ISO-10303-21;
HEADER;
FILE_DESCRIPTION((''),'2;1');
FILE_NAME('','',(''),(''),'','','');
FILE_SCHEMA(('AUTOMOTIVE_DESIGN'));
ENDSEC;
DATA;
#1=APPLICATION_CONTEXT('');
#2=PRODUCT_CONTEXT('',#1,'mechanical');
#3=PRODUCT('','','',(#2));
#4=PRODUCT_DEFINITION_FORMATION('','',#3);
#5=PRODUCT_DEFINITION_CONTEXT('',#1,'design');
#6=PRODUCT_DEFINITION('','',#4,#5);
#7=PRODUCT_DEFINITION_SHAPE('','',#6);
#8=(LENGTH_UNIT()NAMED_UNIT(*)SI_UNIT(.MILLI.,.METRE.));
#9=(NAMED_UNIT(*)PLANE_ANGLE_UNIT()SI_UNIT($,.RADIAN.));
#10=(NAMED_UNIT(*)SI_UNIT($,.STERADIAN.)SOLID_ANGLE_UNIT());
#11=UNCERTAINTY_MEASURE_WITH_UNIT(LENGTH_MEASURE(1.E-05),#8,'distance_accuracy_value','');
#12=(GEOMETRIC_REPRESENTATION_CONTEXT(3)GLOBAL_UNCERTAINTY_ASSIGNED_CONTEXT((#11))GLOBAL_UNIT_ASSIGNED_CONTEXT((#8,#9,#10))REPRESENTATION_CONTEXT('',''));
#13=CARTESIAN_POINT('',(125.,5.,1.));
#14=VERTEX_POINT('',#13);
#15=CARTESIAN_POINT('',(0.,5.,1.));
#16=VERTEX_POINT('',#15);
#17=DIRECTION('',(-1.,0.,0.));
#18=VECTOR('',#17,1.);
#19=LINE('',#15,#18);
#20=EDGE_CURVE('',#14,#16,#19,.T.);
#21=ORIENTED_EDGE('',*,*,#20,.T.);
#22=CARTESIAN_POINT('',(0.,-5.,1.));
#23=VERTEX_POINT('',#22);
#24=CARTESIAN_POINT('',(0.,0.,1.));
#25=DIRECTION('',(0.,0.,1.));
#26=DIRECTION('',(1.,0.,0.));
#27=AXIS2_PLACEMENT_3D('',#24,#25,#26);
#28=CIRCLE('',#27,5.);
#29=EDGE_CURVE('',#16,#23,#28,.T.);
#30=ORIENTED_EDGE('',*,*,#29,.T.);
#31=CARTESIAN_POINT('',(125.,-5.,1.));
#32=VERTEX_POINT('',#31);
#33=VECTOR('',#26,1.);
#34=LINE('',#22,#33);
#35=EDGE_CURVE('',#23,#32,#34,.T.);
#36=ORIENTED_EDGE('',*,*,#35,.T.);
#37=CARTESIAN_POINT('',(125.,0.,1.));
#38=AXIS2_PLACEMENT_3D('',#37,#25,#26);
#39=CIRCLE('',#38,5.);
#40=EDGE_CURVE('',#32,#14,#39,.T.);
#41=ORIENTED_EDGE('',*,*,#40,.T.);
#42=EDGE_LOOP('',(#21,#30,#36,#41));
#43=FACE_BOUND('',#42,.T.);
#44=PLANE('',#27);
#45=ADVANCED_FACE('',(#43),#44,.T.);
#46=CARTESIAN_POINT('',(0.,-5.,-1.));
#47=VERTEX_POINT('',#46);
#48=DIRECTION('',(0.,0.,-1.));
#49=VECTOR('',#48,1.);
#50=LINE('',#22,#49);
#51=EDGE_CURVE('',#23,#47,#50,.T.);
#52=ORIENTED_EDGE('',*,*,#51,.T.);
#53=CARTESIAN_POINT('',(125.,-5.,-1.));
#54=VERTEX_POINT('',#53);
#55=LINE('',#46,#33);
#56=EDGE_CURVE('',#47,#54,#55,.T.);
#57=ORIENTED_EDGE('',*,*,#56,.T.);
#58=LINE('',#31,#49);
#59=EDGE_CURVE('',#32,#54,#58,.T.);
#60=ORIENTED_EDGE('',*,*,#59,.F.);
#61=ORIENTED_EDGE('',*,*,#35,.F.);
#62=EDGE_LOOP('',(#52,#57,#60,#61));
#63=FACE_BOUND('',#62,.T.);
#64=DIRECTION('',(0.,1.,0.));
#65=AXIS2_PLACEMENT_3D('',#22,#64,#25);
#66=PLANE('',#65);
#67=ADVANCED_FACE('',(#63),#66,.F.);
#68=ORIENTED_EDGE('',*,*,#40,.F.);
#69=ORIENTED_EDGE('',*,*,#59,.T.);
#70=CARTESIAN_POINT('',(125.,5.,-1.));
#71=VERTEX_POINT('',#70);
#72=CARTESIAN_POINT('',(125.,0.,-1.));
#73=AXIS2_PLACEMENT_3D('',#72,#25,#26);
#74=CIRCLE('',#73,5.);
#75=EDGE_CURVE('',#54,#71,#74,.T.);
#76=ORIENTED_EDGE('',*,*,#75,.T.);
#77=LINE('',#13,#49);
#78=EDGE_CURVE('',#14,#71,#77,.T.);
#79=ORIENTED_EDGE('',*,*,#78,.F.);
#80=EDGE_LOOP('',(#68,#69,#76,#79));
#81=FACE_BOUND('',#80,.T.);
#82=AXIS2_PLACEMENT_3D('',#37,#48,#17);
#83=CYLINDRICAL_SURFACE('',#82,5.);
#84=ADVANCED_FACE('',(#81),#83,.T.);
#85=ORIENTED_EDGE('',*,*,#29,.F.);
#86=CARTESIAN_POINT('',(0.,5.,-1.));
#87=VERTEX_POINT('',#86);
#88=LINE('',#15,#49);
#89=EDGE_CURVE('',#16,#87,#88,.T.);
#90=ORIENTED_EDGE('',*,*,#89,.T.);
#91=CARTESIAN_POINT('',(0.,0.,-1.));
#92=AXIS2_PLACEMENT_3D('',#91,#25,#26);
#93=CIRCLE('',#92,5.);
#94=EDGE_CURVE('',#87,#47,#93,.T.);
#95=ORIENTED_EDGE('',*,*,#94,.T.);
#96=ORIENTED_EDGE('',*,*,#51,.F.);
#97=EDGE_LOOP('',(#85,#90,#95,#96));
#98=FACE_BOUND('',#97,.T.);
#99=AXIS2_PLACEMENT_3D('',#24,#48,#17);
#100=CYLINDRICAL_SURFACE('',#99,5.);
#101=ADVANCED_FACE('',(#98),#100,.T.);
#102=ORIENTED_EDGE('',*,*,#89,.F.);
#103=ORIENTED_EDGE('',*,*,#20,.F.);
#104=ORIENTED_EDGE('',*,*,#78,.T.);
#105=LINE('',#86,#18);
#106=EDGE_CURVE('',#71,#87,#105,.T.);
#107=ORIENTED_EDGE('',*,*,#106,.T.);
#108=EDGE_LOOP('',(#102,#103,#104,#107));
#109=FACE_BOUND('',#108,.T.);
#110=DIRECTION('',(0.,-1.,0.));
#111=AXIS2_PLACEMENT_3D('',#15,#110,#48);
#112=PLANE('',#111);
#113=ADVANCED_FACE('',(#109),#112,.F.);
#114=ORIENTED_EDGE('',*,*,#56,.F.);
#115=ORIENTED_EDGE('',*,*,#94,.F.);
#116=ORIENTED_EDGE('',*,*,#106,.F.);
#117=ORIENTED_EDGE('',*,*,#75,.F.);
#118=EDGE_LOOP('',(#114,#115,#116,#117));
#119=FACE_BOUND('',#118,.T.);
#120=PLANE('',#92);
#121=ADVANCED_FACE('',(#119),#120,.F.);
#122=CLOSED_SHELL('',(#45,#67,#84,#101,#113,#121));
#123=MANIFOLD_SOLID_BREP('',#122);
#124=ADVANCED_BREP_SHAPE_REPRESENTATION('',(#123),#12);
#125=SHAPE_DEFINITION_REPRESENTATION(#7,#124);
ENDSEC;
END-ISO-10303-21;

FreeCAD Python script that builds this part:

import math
import FreeCAD as App
import Part
import Sketcher

V = App.Vector
Q = App.Units.Quantity

doc = App.newDocument("Part")
body = doc.addObject("PartDesign::Body", "Body")

# Sketch on XY plane
sketch1 = body.newObject("Sketcher::SketchObject", "Sketch")
sketch1.AttachmentSupport = (doc.getObject("XY_Plane"), [""])
sketch1.MapMode = "FlatFace"
sketch1.addGeometry([
    Part.LineSegment(V(125, 5, 0), V(0, 5, 0)),
    Part.ArcOfCircle(Part.Circle(V(0, 0, 0), V(0, 0, 1), 5), math.radians(90), math.radians(270)),
    Part.LineSegment(V(0, -5, 0), V(125, -5, 0)),
    Part.ArcOfCircle(Part.Circle(V(125, 0, 0), V(0, 0, 1), 5), math.radians(-90), math.radians(90)),
], False)
sketch1.addConstraint([
    Sketcher.Constraint("Tangent", 0, 2, 1, 1),
    Sketcher.Constraint("Tangent", 1, 2, 2, 1),
    Sketcher.Constraint("Tangent", 2, 2, 3, 1),
    Sketcher.Constraint("Tangent", 3, 2, 0, 1),
    Sketcher.Constraint("Horizontal", 0),
    Sketcher.Constraint("Horizontal", 2),
    Sketcher.Constraint("Coincident", 1, 3, -1, 1),
    Sketcher.Constraint("Radius", 1, Q("5 mm")),
    Sketcher.Constraint("DistanceX", 0, 2, 0, 1, Q("125 mm")),
])
pad1 = body.newObject("PartDesign::Pad", "Pad")
pad1.Profile = sketch1
pad1.Length = 2
pad1.Midplane = True

doc.recompute()
